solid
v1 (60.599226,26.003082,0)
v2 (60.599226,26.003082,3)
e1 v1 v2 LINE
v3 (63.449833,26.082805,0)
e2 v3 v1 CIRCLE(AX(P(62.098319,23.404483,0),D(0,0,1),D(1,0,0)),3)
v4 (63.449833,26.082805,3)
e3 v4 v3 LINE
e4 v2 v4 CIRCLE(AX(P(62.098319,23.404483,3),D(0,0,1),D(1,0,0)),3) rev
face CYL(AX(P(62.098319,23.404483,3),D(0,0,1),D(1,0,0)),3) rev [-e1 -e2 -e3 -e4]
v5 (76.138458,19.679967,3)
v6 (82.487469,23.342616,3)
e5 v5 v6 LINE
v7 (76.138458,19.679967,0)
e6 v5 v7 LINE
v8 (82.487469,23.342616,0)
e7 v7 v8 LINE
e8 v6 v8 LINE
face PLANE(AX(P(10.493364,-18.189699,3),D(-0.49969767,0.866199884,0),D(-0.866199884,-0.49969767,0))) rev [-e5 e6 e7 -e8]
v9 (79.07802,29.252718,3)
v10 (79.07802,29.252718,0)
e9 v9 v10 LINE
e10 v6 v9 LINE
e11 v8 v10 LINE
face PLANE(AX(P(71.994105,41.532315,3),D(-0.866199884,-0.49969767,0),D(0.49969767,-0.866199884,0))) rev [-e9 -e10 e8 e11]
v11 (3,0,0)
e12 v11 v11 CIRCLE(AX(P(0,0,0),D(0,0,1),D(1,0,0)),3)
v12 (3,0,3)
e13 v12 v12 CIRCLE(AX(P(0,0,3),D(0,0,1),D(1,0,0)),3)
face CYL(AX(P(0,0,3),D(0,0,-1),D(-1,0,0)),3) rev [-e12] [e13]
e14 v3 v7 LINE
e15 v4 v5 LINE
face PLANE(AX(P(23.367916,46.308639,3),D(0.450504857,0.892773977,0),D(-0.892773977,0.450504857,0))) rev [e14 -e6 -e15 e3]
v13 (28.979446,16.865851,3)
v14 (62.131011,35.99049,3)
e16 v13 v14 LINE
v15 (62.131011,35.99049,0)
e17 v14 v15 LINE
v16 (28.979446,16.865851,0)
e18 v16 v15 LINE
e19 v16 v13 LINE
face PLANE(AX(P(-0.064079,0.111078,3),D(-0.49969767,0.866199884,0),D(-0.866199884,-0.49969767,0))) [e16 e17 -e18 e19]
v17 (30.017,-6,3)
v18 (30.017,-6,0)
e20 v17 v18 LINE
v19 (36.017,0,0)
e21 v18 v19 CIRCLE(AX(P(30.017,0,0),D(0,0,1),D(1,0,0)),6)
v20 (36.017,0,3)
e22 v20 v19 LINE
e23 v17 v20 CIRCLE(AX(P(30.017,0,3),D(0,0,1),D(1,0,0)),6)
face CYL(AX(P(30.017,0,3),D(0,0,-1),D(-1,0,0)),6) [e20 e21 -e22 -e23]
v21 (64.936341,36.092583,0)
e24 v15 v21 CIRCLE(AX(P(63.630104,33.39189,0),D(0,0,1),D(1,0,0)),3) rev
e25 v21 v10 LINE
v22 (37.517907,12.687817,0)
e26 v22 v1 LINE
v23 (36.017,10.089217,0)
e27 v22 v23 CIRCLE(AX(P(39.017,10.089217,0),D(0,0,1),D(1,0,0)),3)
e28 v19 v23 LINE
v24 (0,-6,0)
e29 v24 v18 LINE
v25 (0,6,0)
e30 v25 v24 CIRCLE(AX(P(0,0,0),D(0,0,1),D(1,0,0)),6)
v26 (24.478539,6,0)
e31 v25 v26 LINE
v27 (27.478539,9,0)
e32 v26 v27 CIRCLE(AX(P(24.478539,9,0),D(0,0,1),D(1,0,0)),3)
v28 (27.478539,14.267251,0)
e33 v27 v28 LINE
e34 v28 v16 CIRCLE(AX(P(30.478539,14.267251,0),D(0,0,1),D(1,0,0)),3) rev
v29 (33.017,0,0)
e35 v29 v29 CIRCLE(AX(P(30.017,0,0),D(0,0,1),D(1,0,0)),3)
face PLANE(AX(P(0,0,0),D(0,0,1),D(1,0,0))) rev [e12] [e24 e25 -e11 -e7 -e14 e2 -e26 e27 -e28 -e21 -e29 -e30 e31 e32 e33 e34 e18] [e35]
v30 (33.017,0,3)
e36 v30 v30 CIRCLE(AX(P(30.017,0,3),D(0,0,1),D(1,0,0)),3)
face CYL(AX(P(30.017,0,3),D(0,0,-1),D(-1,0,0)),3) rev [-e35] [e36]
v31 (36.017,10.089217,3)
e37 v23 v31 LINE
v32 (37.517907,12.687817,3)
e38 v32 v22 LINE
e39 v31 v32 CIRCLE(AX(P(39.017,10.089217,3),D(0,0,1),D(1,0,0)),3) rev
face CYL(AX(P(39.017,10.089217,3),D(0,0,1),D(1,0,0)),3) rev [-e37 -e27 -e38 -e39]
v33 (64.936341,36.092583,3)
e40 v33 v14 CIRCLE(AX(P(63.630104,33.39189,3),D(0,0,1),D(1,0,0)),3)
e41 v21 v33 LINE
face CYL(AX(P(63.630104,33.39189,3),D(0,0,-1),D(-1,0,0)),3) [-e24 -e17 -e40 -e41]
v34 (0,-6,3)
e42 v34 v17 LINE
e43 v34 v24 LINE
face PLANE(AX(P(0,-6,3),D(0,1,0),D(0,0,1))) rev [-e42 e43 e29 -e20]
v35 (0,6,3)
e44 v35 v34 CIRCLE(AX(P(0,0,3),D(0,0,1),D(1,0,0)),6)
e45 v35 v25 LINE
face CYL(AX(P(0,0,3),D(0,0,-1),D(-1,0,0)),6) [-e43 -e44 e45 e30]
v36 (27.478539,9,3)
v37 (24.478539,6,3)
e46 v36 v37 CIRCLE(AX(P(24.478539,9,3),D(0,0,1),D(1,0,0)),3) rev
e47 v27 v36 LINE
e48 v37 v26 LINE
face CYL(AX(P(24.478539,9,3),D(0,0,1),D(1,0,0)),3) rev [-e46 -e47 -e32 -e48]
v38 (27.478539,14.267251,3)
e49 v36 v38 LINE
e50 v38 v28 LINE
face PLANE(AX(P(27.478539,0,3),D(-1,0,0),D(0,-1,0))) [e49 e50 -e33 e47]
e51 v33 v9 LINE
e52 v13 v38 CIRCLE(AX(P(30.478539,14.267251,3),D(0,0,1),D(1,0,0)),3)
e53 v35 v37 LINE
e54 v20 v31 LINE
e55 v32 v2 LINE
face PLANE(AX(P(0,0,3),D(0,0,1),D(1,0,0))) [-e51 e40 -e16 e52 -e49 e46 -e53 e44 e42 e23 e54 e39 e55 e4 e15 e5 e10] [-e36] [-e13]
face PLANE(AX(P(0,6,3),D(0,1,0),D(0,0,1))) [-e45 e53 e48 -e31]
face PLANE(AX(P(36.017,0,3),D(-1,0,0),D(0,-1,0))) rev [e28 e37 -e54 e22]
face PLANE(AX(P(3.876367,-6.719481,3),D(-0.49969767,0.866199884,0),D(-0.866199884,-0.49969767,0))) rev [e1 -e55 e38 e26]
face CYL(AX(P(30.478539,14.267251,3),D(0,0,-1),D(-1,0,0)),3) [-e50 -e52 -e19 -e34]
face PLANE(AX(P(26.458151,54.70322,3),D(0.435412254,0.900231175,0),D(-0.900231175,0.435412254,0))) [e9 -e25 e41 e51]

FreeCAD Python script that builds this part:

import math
import FreeCAD as App
import Part
import Sketcher

V = App.Vector
Q = App.Units.Quantity


def edges_at(feature, points):
    """Names of the edges that pass closest to the given points."""
    edges = feature.Shape.Edges
    near = lambda p: min(range(len(edges)), key=lambda i: edges[i].distToShape(Part.Vertex(*p))[0])
    return sorted({f"Edge{near(p) + 1}" for p in points})

doc = App.newDocument("Part")
body = doc.addObject("PartDesign::Body", "Body")

sketch1 = doc.addObject("Sketcher::SketchObject", "Sketch")
body.addObject(sketch1)
sketch1.AttachmentSupport = (doc.XY_Plane, [""])
sketch1.MapMode = "FlatFace"
sketch1.addGeometry(Part.LineSegment(V(27.5, 6, 0), V(0, 6, 0)), False)
sketch1.addGeometry(Part.ArcOfCircle(Part.Circle(V(0, 0, 0), V(0, 0, 1), 6), math.radians(90), math.radians(270)), False)
sketch1.addGeometry(Part.LineSegment(V(0, -6, 0), V(30, -6, 0)), False)
sketch1.addGeometry(Part.ArcOfCircle(Part.Circle(V(30, 0, 0), V(0, 0, 1), 6), math.radians(-90), math.radians(0)), False)
sketch1.addGeometry(Part.LineSegment(V(36, 0, 0), V(36, 11.8, 0)), False)
sketch1.addGeometry(Part.LineSegment(V(36, 11.8, 0), V(62, 26.8, 0)), False)
sketch1.addGeometry(Part.LineSegment(V(62, 26.8, 0), V(76.1, 19.7, 0)), False)
sketch1.addGeometry(Part.LineSegment(V(76.1, 19.7, 0), V(82.5, 23.3, 0)), False)
sketch1.addGeometry(Part.LineSegment(V(82.5, 23.3, 0), V(79.1, 29.3, 0)), False)
sketch1.addGeometry(Part.LineSegment(V(79.1, 29.3, 0), V(63.5, 36.8, 0)), False)
sketch1.addGeometry(Part.LineSegment(V(63.5, 36.8, 0), V(27.5, 16, 0)), False)
sketch1.addGeometry(Part.LineSegment(V(27.5, 16, 0), V(27.5, 6, 0)), False)
sketch1.addGeometry(Part.Circle(V(0, 0, 0), V(0, 0, 1), 3), False)
sketch1.addGeometry(Part.Circle(V(30, 0, 0), V(0, 0, 1), 3), False)
sketch1.addConstraint(Sketcher.Constraint("Tangent", 0, 2, 1, 1))
sketch1.addConstraint(Sketcher.Constraint("Tangent", 1, 2, 2, 1))
sketch1.addConstraint(Sketcher.Constraint("Tangent", 2, 2, 3, 1))
sketch1.addConstraint(Sketcher.Constraint("Tangent", 3, 2, 4, 1))
sketch1.addConstraint(Sketcher.Constraint("Coincident", 4, 2, 5, 1))
sketch1.addConstraint(Sketcher.Constraint("Coincident", 5, 2, 6, 1))
sketch1.addConstraint(Sketcher.Constraint("Coincident", 6, 2, 7, 1))
sketch1.addConstraint(Sketcher.Constraint("Coincident", 7, 2, 8, 1))
sketch1.addConstraint(Sketcher.Constraint("Coincident", 8, 2, 9, 1))
sketch1.addConstraint(Sketcher.Constraint("Coincident", 9, 2, 10, 1))
sketch1.addConstraint(Sketcher.Constraint("Coincident", 10, 2, 11, 1))
sketch1.addConstraint(Sketcher.Constraint("Coincident", 11, 2, 0, 1))
sketch1.addConstraint(Sketcher.Constraint("Horizontal", 0))
sketch1.addConstraint(Sketcher.Constraint("Horizontal", 2))
sketch1.addConstraint(Sketcher.Constraint("Vertical", 4))
sketch1.addConstraint(Sketcher.Constraint("Vertical", 11))
sketch1.addConstraint(Sketcher.Constraint("Coincident", 1, 3, -1, 1))
sketch1.addConstraint(Sketcher.Constraint("Coincident", 12, 3, -1, 1))
sketch1.addConstraint(Sketcher.Constraint("Coincident", 13, 3, 3, 3))
sketch1.addConstraint(Sketcher.Constraint("Equal", 1, 3))
sketch1.addConstraint(Sketcher.Constraint("Equal", 12, 13))
sketch1.addConstraint(Sketcher.Constraint("Parallel", 5, 7))
sketch1.addConstraint(Sketcher.Constraint("Perpendicular", 7, 8))
sketch1.addConstraint(Sketcher.Constraint("Perpendicular", 8, 10))
sketch1.addConstraint(Sketcher.Constraint("Diameter", 12, Q("6 mm")))
sketch1.addConstraint(Sketcher.Constraint("Radius", 1, Q("6 mm")))
sketch1.addConstraint(Sketcher.Constraint("DistanceY", 11, 2, 11, 1, Q("10 mm")))
sketch1.addConstraint(Sketcher.Constraint("Distance", 5, Q("30 mm")))
sketch1.addConstraint(Sketcher.Constraint("Angle", 5, Q("29.98 deg")))
sketch1.addConstraint(Sketcher.Constraint("DistanceX", 2, 1, 2, 2, Q("30.017 mm")))
sketch1.addConstraint(Sketcher.Constraint("DistanceY", 4, 2, 6, 2, Q("7.858 mm")))
sketch1.addConstraint(Sketcher.Constraint("DistanceX", 0, 2, 0, 1, Q("27.478539 mm")))
sketch1.addConstraint(Sketcher.Constraint("Distance", 6, Q("15.833192 mm")))
sketch1.addConstraint(Sketcher.Constraint("Distance", 7, Q("7.329729 mm")))
sketch1.addConstraint(Sketcher.Constraint("DistanceY", 4, 1, 4, 2, Q("11.821967 mm")))
sketch1.addConstraint(Sketcher.Constraint("DistanceX", -1, 1, 8, 2, Q("79.07802 mm")))
sketch1.addConstraint(Sketcher.Constraint("DistanceY", 5, 2, 9, 2, Q("9.97118 mm")))
pad1 = doc.addObject("PartDesign::Pad", "Pad")
body.addObject(pad1)
pad1.Profile = sketch1
pad1.Length = 3
doc.recompute()

fillet = doc.addObject("PartDesign::Fillet", "Fillet")
body.addObject(fillet)
fillet.Base = (pad1, edges_at(pad1, [(27.479, 16, 1.5)]))
fillet.Radius = 3
doc.recompute()

fillet2 = doc.addObject("PartDesign::Fillet", "Fillet001")
body.addObject(fillet2)
fillet2.Base = (fillet, edges_at(fillet, [(27.479, 6, 1.5)]))
fillet2.Radius = 3
doc.recompute()

fillet3 = doc.addObject("PartDesign::Fillet", "Fillet002")
body.addObject(fillet3)
fillet3.Base = (fillet2, edges_at(fillet2, [(63.507, 36.784, 1.5), (62.003, 26.813, 1.5), (36.017, 11.822, 1.5)]))
fillet3.Radius = 3

doc.recompute()
